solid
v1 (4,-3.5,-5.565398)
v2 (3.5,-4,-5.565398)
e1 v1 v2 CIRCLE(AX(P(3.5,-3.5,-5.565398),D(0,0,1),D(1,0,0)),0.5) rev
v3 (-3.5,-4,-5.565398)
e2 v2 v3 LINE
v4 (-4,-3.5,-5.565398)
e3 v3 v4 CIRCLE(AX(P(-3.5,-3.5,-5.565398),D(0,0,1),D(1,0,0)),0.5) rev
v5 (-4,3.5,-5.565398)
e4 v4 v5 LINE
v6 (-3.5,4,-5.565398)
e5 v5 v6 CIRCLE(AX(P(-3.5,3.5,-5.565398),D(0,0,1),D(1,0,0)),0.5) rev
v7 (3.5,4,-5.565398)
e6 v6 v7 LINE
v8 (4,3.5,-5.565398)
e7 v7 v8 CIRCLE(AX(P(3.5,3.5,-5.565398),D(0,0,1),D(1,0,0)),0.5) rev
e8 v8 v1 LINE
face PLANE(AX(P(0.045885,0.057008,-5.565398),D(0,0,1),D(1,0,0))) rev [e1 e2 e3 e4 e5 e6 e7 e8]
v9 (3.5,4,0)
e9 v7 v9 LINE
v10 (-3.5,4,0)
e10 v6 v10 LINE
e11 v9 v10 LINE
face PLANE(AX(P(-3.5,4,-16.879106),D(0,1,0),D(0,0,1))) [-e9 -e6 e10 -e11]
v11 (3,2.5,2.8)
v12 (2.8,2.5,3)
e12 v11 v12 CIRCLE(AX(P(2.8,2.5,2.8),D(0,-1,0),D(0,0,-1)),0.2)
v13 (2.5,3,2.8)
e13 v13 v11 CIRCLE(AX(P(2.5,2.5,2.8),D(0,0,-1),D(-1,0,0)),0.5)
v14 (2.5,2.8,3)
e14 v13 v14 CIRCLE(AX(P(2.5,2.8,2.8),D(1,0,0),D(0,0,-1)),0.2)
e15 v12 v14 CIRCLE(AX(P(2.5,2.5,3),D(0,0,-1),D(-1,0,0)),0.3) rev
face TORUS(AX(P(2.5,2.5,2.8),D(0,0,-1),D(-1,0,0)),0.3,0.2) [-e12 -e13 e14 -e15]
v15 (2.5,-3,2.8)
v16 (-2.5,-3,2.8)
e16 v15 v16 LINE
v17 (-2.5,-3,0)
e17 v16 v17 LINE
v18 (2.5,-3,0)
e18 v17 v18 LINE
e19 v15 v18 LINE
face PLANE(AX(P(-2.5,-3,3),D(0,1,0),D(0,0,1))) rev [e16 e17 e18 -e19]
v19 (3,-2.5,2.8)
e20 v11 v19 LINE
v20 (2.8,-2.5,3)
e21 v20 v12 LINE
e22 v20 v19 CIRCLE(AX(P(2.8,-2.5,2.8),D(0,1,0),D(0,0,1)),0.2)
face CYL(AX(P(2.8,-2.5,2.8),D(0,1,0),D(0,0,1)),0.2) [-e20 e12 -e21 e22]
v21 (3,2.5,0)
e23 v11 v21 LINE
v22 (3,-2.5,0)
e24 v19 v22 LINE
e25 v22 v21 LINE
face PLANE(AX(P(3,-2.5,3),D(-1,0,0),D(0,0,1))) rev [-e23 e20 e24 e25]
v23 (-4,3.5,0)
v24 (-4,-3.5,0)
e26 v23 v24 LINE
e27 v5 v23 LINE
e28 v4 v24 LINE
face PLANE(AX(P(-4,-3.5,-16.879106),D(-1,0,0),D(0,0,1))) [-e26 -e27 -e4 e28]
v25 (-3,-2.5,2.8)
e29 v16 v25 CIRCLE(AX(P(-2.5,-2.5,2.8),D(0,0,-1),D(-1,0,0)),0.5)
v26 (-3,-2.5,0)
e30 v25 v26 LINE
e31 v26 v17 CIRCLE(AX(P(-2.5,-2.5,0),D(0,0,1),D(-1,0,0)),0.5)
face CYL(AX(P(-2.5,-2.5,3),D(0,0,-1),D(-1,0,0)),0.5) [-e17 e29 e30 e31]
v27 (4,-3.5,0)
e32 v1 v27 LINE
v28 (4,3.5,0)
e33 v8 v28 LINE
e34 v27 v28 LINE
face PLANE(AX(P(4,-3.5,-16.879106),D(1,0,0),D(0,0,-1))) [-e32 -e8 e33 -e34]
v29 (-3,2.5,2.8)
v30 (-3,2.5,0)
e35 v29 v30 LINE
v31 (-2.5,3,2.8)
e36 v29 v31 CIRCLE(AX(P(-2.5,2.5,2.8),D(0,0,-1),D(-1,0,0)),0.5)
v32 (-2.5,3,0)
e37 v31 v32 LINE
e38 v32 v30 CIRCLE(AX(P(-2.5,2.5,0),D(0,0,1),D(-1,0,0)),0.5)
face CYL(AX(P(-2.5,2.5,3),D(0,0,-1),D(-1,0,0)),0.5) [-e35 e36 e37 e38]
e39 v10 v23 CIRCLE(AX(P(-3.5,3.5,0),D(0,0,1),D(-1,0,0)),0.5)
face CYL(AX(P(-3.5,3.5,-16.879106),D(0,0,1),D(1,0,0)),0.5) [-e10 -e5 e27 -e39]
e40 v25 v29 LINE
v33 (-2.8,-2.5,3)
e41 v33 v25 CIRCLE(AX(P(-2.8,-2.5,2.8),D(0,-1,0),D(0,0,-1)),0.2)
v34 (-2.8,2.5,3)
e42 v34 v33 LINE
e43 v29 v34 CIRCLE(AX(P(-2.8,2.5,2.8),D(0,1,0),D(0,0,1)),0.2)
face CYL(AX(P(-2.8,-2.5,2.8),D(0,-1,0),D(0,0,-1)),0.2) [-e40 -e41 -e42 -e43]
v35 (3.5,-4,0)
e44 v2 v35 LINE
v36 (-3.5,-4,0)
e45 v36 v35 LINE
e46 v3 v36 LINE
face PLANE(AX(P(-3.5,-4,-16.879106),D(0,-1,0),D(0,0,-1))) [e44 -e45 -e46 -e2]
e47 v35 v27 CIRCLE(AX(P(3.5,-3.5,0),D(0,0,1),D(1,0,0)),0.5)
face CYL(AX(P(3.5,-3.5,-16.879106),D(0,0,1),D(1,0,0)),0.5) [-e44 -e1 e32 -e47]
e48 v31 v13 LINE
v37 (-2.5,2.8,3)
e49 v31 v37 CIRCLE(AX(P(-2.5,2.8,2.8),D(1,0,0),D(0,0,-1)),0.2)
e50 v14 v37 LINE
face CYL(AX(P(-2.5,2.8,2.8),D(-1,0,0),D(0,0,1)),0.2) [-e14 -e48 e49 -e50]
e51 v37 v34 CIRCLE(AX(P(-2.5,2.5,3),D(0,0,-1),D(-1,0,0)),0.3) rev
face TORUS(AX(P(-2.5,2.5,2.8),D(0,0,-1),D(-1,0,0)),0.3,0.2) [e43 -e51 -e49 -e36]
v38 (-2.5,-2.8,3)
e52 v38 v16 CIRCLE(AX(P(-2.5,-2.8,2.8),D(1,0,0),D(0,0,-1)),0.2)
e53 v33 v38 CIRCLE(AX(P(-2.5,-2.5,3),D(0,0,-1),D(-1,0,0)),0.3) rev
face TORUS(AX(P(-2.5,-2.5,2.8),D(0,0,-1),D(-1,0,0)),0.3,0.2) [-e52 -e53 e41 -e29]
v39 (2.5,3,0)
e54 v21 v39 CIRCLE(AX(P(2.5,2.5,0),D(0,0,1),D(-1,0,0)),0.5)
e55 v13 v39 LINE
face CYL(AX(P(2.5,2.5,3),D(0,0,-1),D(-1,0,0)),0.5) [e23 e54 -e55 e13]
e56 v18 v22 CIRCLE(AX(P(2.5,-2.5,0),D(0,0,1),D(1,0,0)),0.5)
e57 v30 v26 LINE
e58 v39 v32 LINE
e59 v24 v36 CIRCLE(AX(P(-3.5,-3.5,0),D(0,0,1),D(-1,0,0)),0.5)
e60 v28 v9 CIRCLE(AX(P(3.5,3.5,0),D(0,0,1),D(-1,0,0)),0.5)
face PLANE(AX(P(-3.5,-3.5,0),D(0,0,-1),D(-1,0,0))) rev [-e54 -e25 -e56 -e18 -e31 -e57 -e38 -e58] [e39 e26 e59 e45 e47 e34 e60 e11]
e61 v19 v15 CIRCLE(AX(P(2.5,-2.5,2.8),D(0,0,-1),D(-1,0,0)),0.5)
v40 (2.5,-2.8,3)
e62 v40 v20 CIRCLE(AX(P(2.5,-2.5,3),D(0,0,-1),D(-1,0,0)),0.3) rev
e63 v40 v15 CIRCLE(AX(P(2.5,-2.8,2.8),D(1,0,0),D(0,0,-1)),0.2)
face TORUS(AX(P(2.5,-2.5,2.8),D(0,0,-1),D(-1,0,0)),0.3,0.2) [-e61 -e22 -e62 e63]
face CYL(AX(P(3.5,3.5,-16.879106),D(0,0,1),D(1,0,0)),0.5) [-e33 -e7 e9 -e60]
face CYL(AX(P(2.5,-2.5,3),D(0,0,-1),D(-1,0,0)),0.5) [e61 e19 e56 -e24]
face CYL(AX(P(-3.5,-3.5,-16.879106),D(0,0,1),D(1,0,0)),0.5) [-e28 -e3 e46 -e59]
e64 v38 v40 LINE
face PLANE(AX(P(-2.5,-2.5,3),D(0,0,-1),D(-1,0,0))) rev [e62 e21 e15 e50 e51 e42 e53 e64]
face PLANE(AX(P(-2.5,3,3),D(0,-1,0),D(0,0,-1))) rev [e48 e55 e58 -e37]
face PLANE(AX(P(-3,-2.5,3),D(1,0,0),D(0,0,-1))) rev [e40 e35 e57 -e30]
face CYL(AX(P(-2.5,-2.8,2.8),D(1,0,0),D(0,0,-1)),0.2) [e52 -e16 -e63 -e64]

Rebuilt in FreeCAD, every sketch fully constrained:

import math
import FreeCAD as App
import Part
import Sketcher
from FreeCAD import Vector


def edges_at(feature, points):
    """Names of the edges that pass closest to the given points."""
    edges = feature.Shape.Edges
    near = lambda p: min(range(len(edges)), key=lambda i: edges[i].distToShape(Part.Vertex(*p))[0])
    return sorted({f"Edge{near(p) + 1}" for p in points})

doc = App.newDocument("Part")
body = doc.addObject("PartDesign::Body", "Body")

sketch1 = body.newObject("Sketcher::SketchObject", "Sketch")
sketch1.AttachmentSupport = (doc.getObject("XY_Plane"), [""])
sketch1.MapMode = "FlatFace"
sketch1.addGeometry([
    Part.LineSegment(Vector(-2.5, -3, 0), Vector(2.5, -3, 0)),
    Part.ArcOfCircle(Part.Circle(Vector(2.5, -2.5, 0), Vector(0, 0, 1), 0.5), math.radians(-90), math.radians(0)),
    Part.LineSegment(Vector(3, -2.5, 0), Vector(3, 2.5, 0)),
    Part.ArcOfCircle(Part.Circle(Vector(2.5, 2.5, 0), Vector(0, 0, 1), 0.5), math.radians(0), math.radians(90)),
    Part.LineSegment(Vector(2.5, 3, 0), Vector(-2.5, 3, 0)),
    Part.ArcOfCircle(Part.Circle(Vector(-2.5, 2.5, 0), Vector(0, 0, 1), 0.5), math.radians(90), math.radians(180)),
    Part.LineSegment(Vector(-3, 2.5, 0), Vector(-3, -2.5, 0)),
    Part.ArcOfCircle(Part.Circle(Vector(-2.5, -2.5, 0), Vector(0, 0, 1), 0.5), math.radians(180), math.radians(270)),
], False)
sketch1.addConstraint([
    Sketcher.Constraint("Tangent", 0, 2, 1, 1),
    Sketcher.Constraint("Tangent", 1, 2, 2, 1),
    Sketcher.Constraint("Tangent", 2, 2, 3, 1),
    Sketcher.Constraint("Tangent", 3, 2, 4, 1),
    Sketcher.Constraint("Tangent", 4, 2, 5, 1),
    Sketcher.Constraint("Tangent", 5, 2, 6, 1),
    Sketcher.Constraint("Tangent", 6, 2, 7, 1),
    Sketcher.Constraint("Tangent", 7, 2, 0, 1),
    Sketcher.Constraint("Horizontal", 0),
    Sketcher.Constraint("Vertical", 2),
    Sketcher.Constraint("Horizontal", 4),
    Sketcher.Constraint("Vertical", 6),
    Sketcher.Constraint("Equal", 1, 3),
    Sketcher.Constraint("Equal", 3, 5),
    Sketcher.Constraint("Equal", 5, 7),
    Sketcher.Constraint("Symmetric", 1, 3, 5, 3, -1, 1),
    Sketcher.Constraint("Equal", 4, 2),
    Sketcher.Constraint("Radius", 1, 0.5),
    Sketcher.Constraint("DistanceX", 0, 1, 0, 2, 5.0),
])
pad1 = body.newObject("PartDesign::Pad", "Pad")
pad1.Profile = sketch1
pad1.Length = 3
doc.recompute()

fillet = body.newObject("PartDesign::Fillet", "Fillet")
fillet.Base = (pad1, edges_at(pad1, [
    (2.854, -2.854, 3),
    (3, 0, 3),
    (2.854, 2.854, 3),
    (0, 3, 3),
    (-2.854, 2.854, 3),
    (-3, 0, 3),
    (-2.854, -2.854, 3),
    (0, -3, 3),
]))
fillet.Radius = 0.2

sketch2 = body.newObject("Sketcher::SketchObject", "Sketch001")
sketch2.AttachmentSupport = (doc.getObject("XY_Plane"), [""])
sketch2.MapMode = "FlatFace"
sketch2.addGeometry([
    Part.LineSegment(Vector(-3.5, -4, 0), Vector(3.5, -4, 0)),
    Part.ArcOfCircle(Part.Circle(Vector(3.5, -3.5, 0), Vector(0, 0, 1), 0.5), math.radians(-90), math.radians(0)),
    Part.LineSegment(Vector(4, -3.5, 0), Vector(4, 3.5, 0)),
    Part.ArcOfCircle(Part.Circle(Vector(3.5, 3.5, 0), Vector(0, 0, 1), 0.5), math.radians(0), math.radians(90)),
    Part.LineSegment(Vector(3.5, 4, 0), Vector(-3.5, 4, 0)),
    Part.ArcOfCircle(Part.Circle(Vector(-3.5, 3.5, 0), Vector(0, 0, 1), 0.5), math.radians(90), math.radians(180)),
    Part.LineSegment(Vector(-4, 3.5, 0), Vector(-4, -3.5, 0)),
    Part.ArcOfCircle(Part.Circle(Vector(-3.5, -3.5, 0), Vector(0, 0, 1), 0.5), math.radians(180), math.radians(270)),
], False)
sketch2.addConstraint([
    Sketcher.Constraint("Tangent", 0, 2, 1, 1),
    Sketcher.Constraint("Tangent", 1, 2, 2, 1),
    Sketcher.Constraint("Tangent", 2, 2, 3, 1),
    Sketcher.Constraint("Tangent", 3, 2, 4, 1),
    Sketcher.Constraint("Tangent", 4, 2, 5, 1),
    Sketcher.Constraint("Tangent", 5, 2, 6, 1),
    Sketcher.Constraint("Tangent", 6, 2, 7, 1),
    Sketcher.Constraint("Tangent", 7, 2, 0, 1),
    Sketcher.Constraint("Horizontal", 0),
    Sketcher.Constraint("Vertical", 2),
    Sketcher.Constraint("Horizontal", 4),
    Sketcher.Constraint("Vertical", 6),
    Sketcher.Constraint("Equal", 1, 3),
    Sketcher.Constraint("Equal", 3, 5),
    Sketcher.Constraint("Equal", 5, 7),
    Sketcher.Constraint("Symmetric", 1, 3, 5, 3, -1, 1),
    Sketcher.Constraint("Equal", 4, 2),
    Sketcher.Constraint("Radius", 1, 0.5),
    Sketcher.Constraint("DistanceX", 0, 1, 0, 2, 7.0),
])
pad2 = body.newObject("PartDesign::Pad", "Pad001")
pad2.Profile = sketch2
pad2.Length = 5.565398
pad2.Reversed = True

doc.recompute()
